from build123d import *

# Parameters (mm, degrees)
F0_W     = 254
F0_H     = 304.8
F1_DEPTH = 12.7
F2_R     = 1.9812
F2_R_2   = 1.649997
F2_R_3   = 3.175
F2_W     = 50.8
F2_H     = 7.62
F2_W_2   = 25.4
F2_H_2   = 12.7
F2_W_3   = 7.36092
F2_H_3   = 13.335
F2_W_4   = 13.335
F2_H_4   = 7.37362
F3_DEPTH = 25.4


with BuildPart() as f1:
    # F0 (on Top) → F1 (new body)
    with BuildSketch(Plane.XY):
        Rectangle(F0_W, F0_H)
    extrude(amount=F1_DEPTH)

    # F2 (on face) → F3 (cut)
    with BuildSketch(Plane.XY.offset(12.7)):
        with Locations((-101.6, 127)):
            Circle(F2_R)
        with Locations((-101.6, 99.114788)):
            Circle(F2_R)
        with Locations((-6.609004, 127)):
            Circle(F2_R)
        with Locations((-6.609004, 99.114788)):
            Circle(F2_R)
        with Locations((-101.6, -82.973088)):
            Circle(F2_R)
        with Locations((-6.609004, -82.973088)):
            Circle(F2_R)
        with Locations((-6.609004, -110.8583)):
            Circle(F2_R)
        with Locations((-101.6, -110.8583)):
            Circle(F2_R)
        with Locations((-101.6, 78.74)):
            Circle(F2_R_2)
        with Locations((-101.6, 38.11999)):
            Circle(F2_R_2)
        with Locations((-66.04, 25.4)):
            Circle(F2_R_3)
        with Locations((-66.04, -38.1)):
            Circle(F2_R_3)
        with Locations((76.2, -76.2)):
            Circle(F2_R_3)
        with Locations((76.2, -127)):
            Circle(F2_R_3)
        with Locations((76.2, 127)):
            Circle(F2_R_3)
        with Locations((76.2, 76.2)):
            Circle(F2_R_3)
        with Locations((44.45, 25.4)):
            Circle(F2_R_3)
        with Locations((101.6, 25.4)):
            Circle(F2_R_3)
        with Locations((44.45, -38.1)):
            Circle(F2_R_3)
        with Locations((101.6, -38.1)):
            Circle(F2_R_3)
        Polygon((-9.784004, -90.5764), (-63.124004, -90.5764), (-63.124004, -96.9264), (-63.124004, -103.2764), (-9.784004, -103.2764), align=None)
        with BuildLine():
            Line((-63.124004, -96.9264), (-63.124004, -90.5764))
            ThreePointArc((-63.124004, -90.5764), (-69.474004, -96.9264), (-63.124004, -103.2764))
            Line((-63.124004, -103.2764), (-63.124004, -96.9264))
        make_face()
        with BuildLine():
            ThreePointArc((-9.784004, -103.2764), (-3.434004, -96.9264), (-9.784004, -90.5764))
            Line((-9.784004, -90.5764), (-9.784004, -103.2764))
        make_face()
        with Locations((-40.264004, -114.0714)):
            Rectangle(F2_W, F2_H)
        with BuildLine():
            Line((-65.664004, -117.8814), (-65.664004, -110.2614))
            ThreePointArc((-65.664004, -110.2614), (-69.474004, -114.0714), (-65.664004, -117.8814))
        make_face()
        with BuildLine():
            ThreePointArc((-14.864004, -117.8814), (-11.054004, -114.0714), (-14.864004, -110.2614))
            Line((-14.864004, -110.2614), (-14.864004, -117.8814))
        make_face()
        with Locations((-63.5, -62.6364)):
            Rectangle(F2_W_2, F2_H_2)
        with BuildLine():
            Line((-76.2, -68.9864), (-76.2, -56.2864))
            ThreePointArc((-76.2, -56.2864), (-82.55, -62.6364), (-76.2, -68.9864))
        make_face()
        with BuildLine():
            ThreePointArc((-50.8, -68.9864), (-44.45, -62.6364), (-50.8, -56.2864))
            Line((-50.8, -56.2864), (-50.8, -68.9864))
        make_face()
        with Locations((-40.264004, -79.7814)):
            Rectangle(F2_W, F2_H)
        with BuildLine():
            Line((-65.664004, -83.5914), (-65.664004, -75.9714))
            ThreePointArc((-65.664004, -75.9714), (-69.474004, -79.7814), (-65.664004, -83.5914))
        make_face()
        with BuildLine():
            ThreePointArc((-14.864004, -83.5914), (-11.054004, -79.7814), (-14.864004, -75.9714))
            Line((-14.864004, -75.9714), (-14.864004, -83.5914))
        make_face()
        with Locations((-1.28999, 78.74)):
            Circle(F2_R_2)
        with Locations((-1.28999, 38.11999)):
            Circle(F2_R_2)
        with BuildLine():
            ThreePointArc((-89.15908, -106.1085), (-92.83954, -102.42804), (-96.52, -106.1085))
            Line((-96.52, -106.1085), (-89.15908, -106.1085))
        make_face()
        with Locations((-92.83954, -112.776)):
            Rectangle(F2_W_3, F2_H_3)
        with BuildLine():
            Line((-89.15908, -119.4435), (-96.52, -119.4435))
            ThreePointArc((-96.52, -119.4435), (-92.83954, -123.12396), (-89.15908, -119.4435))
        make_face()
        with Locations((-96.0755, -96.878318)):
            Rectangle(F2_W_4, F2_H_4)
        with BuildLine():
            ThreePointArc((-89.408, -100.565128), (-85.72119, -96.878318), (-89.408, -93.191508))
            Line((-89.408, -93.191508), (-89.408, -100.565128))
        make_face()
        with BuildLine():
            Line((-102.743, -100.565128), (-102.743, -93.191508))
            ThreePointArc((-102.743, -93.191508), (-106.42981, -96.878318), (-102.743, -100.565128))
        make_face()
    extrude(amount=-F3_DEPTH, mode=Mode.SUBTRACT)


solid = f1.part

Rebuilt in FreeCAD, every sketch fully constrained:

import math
import FreeCAD as App
import Part
import Sketcher

V = App.Vector
Q = App.Units.Quantity

doc = App.newDocument("Part")
params = doc.addObject("Spreadsheet::Sheet", "Params")
for row, (alias, value) in enumerate([
    ("sketch1_width", "10 in"),
    ("sketch1_height", "12 in"),
    ("pad1_length", "0.5 in"),
    ("sketch2_diameter", "0.25 in"),
    ("sketch2_width", "2 in"),
    ("sketch2_width2", "1 in"),
    ("sketch2_radius", "0.25 in"),
    ("sketch2_radius2", "0.15 in"),
    ("pocket1_length", "1 in"),
], start=1):
    params.set(f"A{row}", alias)
    params.set(f"B{row}", "=" + value)
    params.setAlias(f"B{row}", alias)

body = doc.addObject("PartDesign::Body", "Body")

sketch1 = body.newObject("Sketcher::SketchObject", "Sketch")
sketch1.AttachmentSupport = (doc.getObject("XY_Plane"), [""])
sketch1.MapMode = "FlatFace"
sketch1.addGeometry([
    Part.LineSegment(V(-127, 152.4, 0), V(-127, -152.4, 0)),
    Part.LineSegment(V(-127, -152.4, 0), V(127, -152.4, 0)),
    Part.LineSegment(V(127, -152.4, 0), V(127, 152.4, 0)),
    Part.LineSegment(V(127, 152.4, 0), V(-127, 152.4, 0)),
], False)
sketch1.addConstraint([
    Sketcher.Constraint("Coincident", 0, 2, 1, 1),
    Sketcher.Constraint("Coincident", 1, 2, 2, 1),
    Sketcher.Constraint("Coincident", 2, 2, 3, 1),
    Sketcher.Constraint("Coincident", 3, 2, 0, 1),
    Sketcher.Constraint("Vertical", 0),
    Sketcher.Constraint("Horizontal", 1),
    Sketcher.Constraint("Vertical", 2),
    Sketcher.Constraint("Horizontal", 3),
    Sketcher.Constraint("Symmetric", 0, 2, 2, 2, -1, 1),
    Sketcher.Constraint("DistanceX", 1, 1, 1, 2, Q("10 in")),
    Sketcher.Constraint("DistanceY", 0, 2, 0, 1, Q("12 in")),
])
sketch1.setExpression("Constraints[9]", "Params.sketch1_width")
sketch1.setExpression("Constraints[10]", "Params.sketch1_height")
pad1 = body.newObject("PartDesign::Pad", "Pad")
pad1.Profile = sketch1
pad1.setExpression("Length", "Params.pad1_length")

sketch2 = body.newObject("Sketcher::SketchObject", "Sketch001")
sketch2.AttachmentSupport = (doc.getObject("XY_Plane"), [""])
sketch2.MapMode = "FlatFace"
sketch2.AttachmentOffset = App.Placement(V(0, 0, 0.5 * 25.4), App.Rotation())
sketch2.addGeometry([
    Part.Circle(V(-101.6, 127, 0), V(0, 0, 1), 1.9812),
    Part.Circle(V(-101.6, 99.114788, 0), V(0, 0, 1), 1.9812),
    Part.Circle(V(-6.609004, 127, 0), V(0, 0, 1), 1.9812),
    Part.Circle(V(-6.609004, 99.114788, 0), V(0, 0, 1), 1.9812),
    Part.Circle(V(-101.6, -82.973088, 0), V(0, 0, 1), 1.9812),
    Part.Circle(V(-6.609004, -82.973088, 0), V(0, 0, 1), 1.9812),
    Part.Circle(V(-6.609004, -110.8583, 0), V(0, 0, 1), 1.9812),
    Part.Circle(V(-101.6, -110.8583, 0), V(0, 0, 1), 1.9812),
    Part.Circle(V(-101.6, 78.74, 0), V(0, 0, 1), 1.649997),
    Part.Circle(V(-101.6, 38.11999, 0), V(0, 0, 1), 1.649997),
    Part.Circle(V(-66.04, 25.4, 0), V(0, 0, 1), 3.175),
    Part.Circle(V(-66.04, -38.1, 0), V(0, 0, 1), 3.175),
    Part.Circle(V(76.2, -76.2, 0), V(0, 0, 1), 3.175),
    Part.Circle(V(76.2, -127, 0), V(0, 0, 1), 3.175),
    Part.Circle(V(76.2, 127, 0), V(0, 0, 1), 3.175),
    Part.Circle(V(76.2, 76.2, 0), V(0, 0, 1), 3.175),
    Part.Circle(V(44.45, 25.4, 0), V(0, 0, 1), 3.175),
    Part.Circle(V(101.6, 25.4, 0), V(0, 0, 1), 3.175),
    Part.Circle(V(44.45, -38.1, 0), V(0, 0, 1), 3.175),
    Part.Circle(V(101.6, -38.1, 0), V(0, 0, 1), 3.175),
    Part.LineSegment(V(-9.784004, -90.5764, 0), V(-63.124004, -90.5764, 0)),
    Part.ArcOfCircle(Part.Circle(V(-63.124004, -96.9264, 0), V(0, 0, 1), 6.35), math.radians(90), math.radians(270)),
    Part.LineSegment(V(-63.124004, -103.2764, 0), V(-9.784004, -103.2764, 0)),
    Part.ArcOfCircle(Part.Circle(V(-9.784004, -96.9264, 0), V(0, 0, 1), 6.35), math.radians(-90), math.radians(90)),
    Part.LineSegment(V(-65.664004, -117.8814, 0), V(-14.864004, -117.8814, 0)),
    Part.ArcOfCircle(Part.Circle(V(-14.864004, -114.0714, 0), V(0, 0, 1), 3.81), math.radians(-90), math.radians(90)),
    Part.LineSegment(V(-14.864004, -110.2614, 0), V(-65.664004, -110.2614, 0)),
    Part.ArcOfCircle(Part.Circle(V(-65.664004, -114.0714, 0), V(0, 0, 1), 3.81), math.radians(90), math.radians(270)),
    Part.LineSegment(V(-76.2, -68.9864, 0), V(-50.8, -68.9864, 0)),
    Part.ArcOfCircle(Part.Circle(V(-50.8, -62.6364, 0), V(0, 0, 1), 6.35), math.radians(-90), math.radians(90)),
    Part.LineSegment(V(-50.8, -56.2864, 0), V(-76.2, -56.2864, 0)),
    Part.ArcOfCircle(Part.Circle(V(-76.2, -62.6364, 0), V(0, 0, 1), 6.35), math.radians(90), math.radians(270)),
    Part.LineSegment(V(-65.664004, -83.5914, 0), V(-14.864004, -83.5914, 0)),
    Part.ArcOfCircle(Part.Circle(V(-14.864004, -79.7814, 0), V(0, 0, 1), 3.81), math.radians(-90), math.radians(90)),
    Part.LineSegment(V(-14.864004, -75.9714, 0), V(-65.664004, -75.9714, 0)),
    Part.ArcOfCircle(Part.Circle(V(-65.664004, -79.7814, 0), V(0, 0, 1), 3.81), math.radians(90), math.radians(270)),
    Part.Circle(V(-1.28999, 78.74, 0), V(0, 0, 1), 1.649997),
    Part.Circle(V(-1.28999, 38.11999, 0), V(0, 0, 1), 1.649997),
    Part.ArcOfCircle(Part.Circle(V(-92.83954, -106.1085, 0), V(0, 0, 1), 3.68046), math.radians(0), math.radians(180)),
    Part.LineSegment(V(-96.52, -106.1085, 0), V(-96.52, -119.4435, 0)),
    Part.ArcOfCircle(Part.Circle(V(-92.83954, -119.4435, 0), V(0, 0, 1), 3.68046), math.radians(180), math.radians(360)),
    Part.LineSegment(V(-89.15908, -119.4435, 0), V(-89.15908, -106.1085, 0)),
    Part.LineSegment(V(-102.743, -100.565128, 0), V(-89.408, -100.565128, 0)),
    Part.ArcOfCircle(Part.Circle(V(-89.408, -96.878318, 0), V(0, 0, 1), 3.68681), math.radians(-90), math.radians(90)),
    Part.LineSegment(V(-89.408, -93.191508, 0), V(-102.743, -93.191508, 0)),
    Part.ArcOfCircle(Part.Circle(V(-102.743, -96.878318, 0), V(0, 0, 1), 3.68681), math.radians(90), math.radians(270)),
], False)
sketch2.addConstraint([
    Sketcher.Constraint("Tangent", 20, 2, 21, 1),
    Sketcher.Constraint("Tangent", 21, 2, 22, 1),
    Sketcher.Constraint("Tangent", 22, 2, 23, 1),
    Sketcher.Constraint("Tangent", 23, 2, 20, 1),
    Sketcher.Constraint("Tangent", 24, 2, 25, 1),
    Sketcher.Constraint("Tangent", 25, 2, 26, 1),
    Sketcher.Constraint("Tangent", 26, 2, 27, 1),
    Sketcher.Constraint("Tangent", 27, 2, 24, 1),
    Sketcher.Constraint("Tangent", 28, 2, 29, 1),
    Sketcher.Constraint("Tangent", 29, 2, 30, 1),
    Sketcher.Constraint("Tangent", 30, 2, 31, 1),
    Sketcher.Constraint("Tangent", 31, 2, 28, 1),
    Sketcher.Constraint("Tangent", 32, 2, 33, 1),
    Sketcher.Constraint("Tangent", 33, 2, 34, 1),
    Sketcher.Constraint("Tangent", 34, 2, 35, 1),
    Sketcher.Constraint("Tangent", 35, 2, 32, 1),
    Sketcher.Constraint("Tangent", 38, 2, 39, 1),
    Sketcher.Constraint("Tangent", 39, 2, 40, 1),
    Sketcher.Constraint("Tangent", 40, 2, 41, 1),
    Sketcher.Constraint("Tangent", 41, 2, 38, 1),
    Sketcher.Constraint("Tangent", 42, 2, 43, 1),
    Sketcher.Constraint("Tangent", 43, 2, 44, 1),
    Sketcher.Constraint("Tangent", 44, 2, 45, 1),
    Sketcher.Constraint("Tangent", 45, 2, 42, 1),
    Sketcher.Constraint("Horizontal", 20),
    Sketcher.Constraint("Horizontal", 22),
    Sketcher.Constraint("Horizontal", 24),
    Sketcher.Constraint("Horizontal", 26),
    Sketcher.Constraint("Horizontal", 28),
    Sketcher.Constraint("Horizontal", 30),
    Sketcher.Constraint("Horizontal", 32),
    Sketcher.Constraint("Horizontal", 34),
    Sketcher.Constraint("Vertical", 39),
    Sketcher.Constraint("Vertical", 41),
    Sketcher.Constraint("Horizontal", 42),
    Sketcher.Constraint("Horizontal", 44),
    Sketcher.Constraint("Equal", 0, 1),
    Sketcher.Constraint("Equal", 1, 2),
    Sketcher.Constraint("Equal", 2, 3),
    Sketcher.Constraint("Equal", 3, 4),
    Sketcher.Constraint("Equal", 4, 5),
    Sketcher.Constraint("Equal", 5, 6),
    Sketcher.Constraint("Equal", 6, 7),
    Sketcher.Constraint("Equal", 8, 9),
    Sketcher.Constraint("Equal", 10, 11),
    Sketcher.Constraint("Equal", 11, 12),
    Sketcher.Constraint("Equal", 12, 13),
    Sketcher.Constraint("Equal", 13, 14),
    Sketcher.Constraint("Equal", 14, 15),
    Sketcher.Constraint("Equal", 15, 16),
    Sketcher.Constraint("Equal", 16, 17),
    Sketcher.Constraint("Equal", 17, 18),
    Sketcher.Constraint("Equal", 18, 19),
    Sketcher.Constraint("Equal", 23, 29),
    Sketcher.Constraint("Equal", 27, 33),
    Sketcher.Constraint("Equal", 9, 36),
    Sketcher.Constraint("Equal", 36, 37),
    Sketcher.Constraint("Symmetric", 13, 3, 14, 3, -1),
    Sketcher.Constraint("Symmetric", 12, 3, 15, 3, -1),
    Sketcher.Constraint("Horizontal", 0, 3, 2, 3),
    Sketcher.Constraint("Horizontal", 1, 3, 3, 3),
    Sketcher.Constraint("Horizontal", 4, 3, 5, 3),
    Sketcher.Constraint("Horizontal", 6, 3, 7, 3),
    Sketcher.Constraint("Horizontal", 2, 3, 14, 3),
    Sketcher.Constraint("Horizontal", 10, 3, 16, 3),
    Sketcher.Constraint("Horizontal", 16, 3, 17, 3),
    Sketcher.Constraint("Horizontal", 11, 3, 18, 3),
    Sketcher.Constraint("Horizontal", 18, 3, 19, 3),
    Sketcher.Constraint("Horizontal", 8, 3, 36, 3),
    Sketcher.Constraint("Horizontal", 9, 3, 37, 3),
    Sketcher.Constraint("Vertical", 0, 3, 1, 3),
    Sketcher.Constraint("Vertical", 2, 3, 3, 3),
    Sketcher.Constraint("Vertical", 1, 3, 4, 3),
    Sketcher.Constraint("Vertical", 3, 3, 5, 3),
    Sketcher.Constraint("Vertical", 5, 3, 6, 3),
    Sketcher.Constraint("Vertical", 4, 3, 7, 3),
    Sketcher.Constraint("Vertical", 7, 3, 8, 3),
    Sketcher.Constraint("Vertical", 8, 3, 9, 3),
    Sketcher.Constraint("Vertical", 10, 3, 11, 3),
    Sketcher.Constraint("Vertical", 12, 3, 13, 3),
    Sketcher.Constraint("Vertical", 16, 3, 18, 3),
    Sketcher.Constraint("Vertical", 17, 3, 19, 3),
    Sketcher.Constraint("Vertical", 25, 3, 33, 3),
    Sketcher.Constraint("Vertical", 27, 3, 35, 3),
    Sketcher.Constraint("Vertical", 36, 3, 37, 3),
    Sketcher.Constraint("Equal", 44, 39),
    Sketcher.Constraint("Diameter", 10, Q("0.25 in")),
    Sketcher.Constraint("DistanceX", 24, 1, 24, 2, Q("2 in")),
    Sketcher.Constraint("DistanceX", 28, 1, 28, 2, Q("1 in")),
    Sketcher.Constraint("Radius", 21, Q("0.25 in")),
    Sketcher.Constraint("Radius", 25, Q("0.15 in")),
    Sketcher.Constraint("Diameter", 0, Q("0.156 in")),
    Sketcher.Constraint("DistanceX", 20, 2, 20, 1, Q("2.1 in")),
    Sketcher.Constraint("DistanceX", 0, 3, -1, 1, Q("4 in")),
    Sketcher.Constraint("DistanceY", -1, 1, 0, 3, Q("5 in")),
    Sketcher.Constraint("DistanceY", -1, 1, 10, 3, Q("1 in")),
    Sketcher.Constraint("DistanceX", -1, 1, 12, 3, Q("3 in")),
    Sketcher.Constraint("DistanceY", 12, 3, -1, 1, Q("3 in")),
    Sketcher.Constraint("DistanceX", -1, 1, 17, 3, Q("4 in")),
    Sketcher.Constraint("DistanceX", 29, 3, -1, 1, Q("2 in")),
    Sketcher.Constraint("DistanceY", -1, 1, 8, 3, Q("3.1 in")),
    Sketcher.Constraint("DistanceX", 10, 3, -1, 1, Q("2.6 in")),
    Sketcher.Constraint("DistanceY", 11, 3, -1, 1, Q("1.5 in")),
    Sketcher.Constraint("DistanceX", 38, 2, -1, 1, Q("3.8 in")),
    Sketcher.Constraint("Radius", 38, Q("0.1449 in")),
    Sketcher.Constraint("DistanceX", 25, 3, 23, 3, Q("0.2 in")),
    Sketcher.Constraint("DistanceY", 20, 2, 29, 3, Q("1.1 in")),
    Sketcher.Constraint("DistanceX", 42, 1, 42, 2, Q("0.525 in")),
    Sketcher.Constraint("DistanceX", -1, 1, 16, 3, Q("1.75 in")),
    Sketcher.Constraint("DistanceX", 43, 3, -1, 1, Q("3.52 in")),
    Sketcher.Constraint("DistanceY", 25, 3, 33, 3, Q("1.35 in")),
    Sketcher.Constraint("DistanceY", 21, 3, -1, 1, Q("3.816 in")),
    Sketcher.Constraint("DistanceY", 25, 3, -1, 1, Q("4.491 in")),
    Sketcher.Constraint("Radius", 43, Q("3.68681 mm")),
    Sketcher.Constraint("DistanceX", 21, 3, 6, 3, Q("2.225 in")),
    Sketcher.Constraint("DistanceY", 7, 3, 38, 3, Q("0.187 in")),
    Sketcher.Constraint("Diameter", 8, Q("3.299994 mm")),
    Sketcher.Constraint("DistanceY", 6, 3, -1, 1, Q("4.3645 in")),
    Sketcher.Constraint("DistanceY", 44, 2, 4, 3, Q("0.4023 in")),
    Sketcher.Constraint("DistanceY", 9, 3, 1, 3, Q("60.994798 mm")),
    Sketcher.Constraint("DistanceY", -1, 1, 1, 3, Q("99.114788 mm")),
    Sketcher.Constraint("DistanceY", 4, 3, -1, 1, Q("82.973088 mm")),
    Sketcher.Constraint("DistanceX", 36, 3, -1, 1, Q("1.28999 mm")),
    Sketcher.Constraint("DistanceX", 2, 3, -1, 1, Q("6.609004 mm")),
])
sketch2.setExpression("Constraints[86]", "Params.sketch2_diameter")
sketch2.setExpression("Constraints[87]", "Params.sketch2_width")
sketch2.setExpression("Constraints[88]", "Params.sketch2_width2")
sketch2.setExpression("Constraints[89]", "Params.sketch2_radius")
sketch2.setExpression("Constraints[90]", "Params.sketch2_radius2")
pocket1 = body.newObject("PartDesign::Pocket", "Pocket")
pocket1.Profile = sketch2
pocket1.setExpression("Length", "Params.pocket1_length")

doc.recompute()
